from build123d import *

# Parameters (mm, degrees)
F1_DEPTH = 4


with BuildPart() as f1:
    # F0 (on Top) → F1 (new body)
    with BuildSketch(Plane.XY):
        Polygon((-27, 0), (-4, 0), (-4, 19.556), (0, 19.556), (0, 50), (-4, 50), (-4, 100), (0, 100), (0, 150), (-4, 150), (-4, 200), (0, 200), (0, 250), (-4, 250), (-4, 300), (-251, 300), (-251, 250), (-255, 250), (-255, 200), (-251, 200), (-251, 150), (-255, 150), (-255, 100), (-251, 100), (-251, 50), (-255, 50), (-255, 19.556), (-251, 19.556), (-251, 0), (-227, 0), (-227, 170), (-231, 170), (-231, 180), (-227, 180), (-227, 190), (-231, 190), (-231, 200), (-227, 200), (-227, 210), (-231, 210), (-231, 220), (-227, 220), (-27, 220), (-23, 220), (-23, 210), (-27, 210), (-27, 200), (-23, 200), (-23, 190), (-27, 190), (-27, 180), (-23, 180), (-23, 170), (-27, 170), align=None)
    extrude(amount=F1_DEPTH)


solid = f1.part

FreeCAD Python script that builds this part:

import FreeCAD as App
import Part
import Sketcher

doc = App.newDocument("Part")
body = doc.addObject("PartDesign::Body", "Body")

# Sketch on XY plane
sketch1 = body.newObject("Sketcher::SketchObject", "Sketch")
sketch1.AttachmentSupport = (doc.getObject("XY_Plane"), [""])
sketch1.MapMode = "FlatFace"
sketch1.addGeometry([
    Part.LineSegment(App.Vector(-27, 0, 0), App.Vector(-4, 0, 0)),  # 0
    Part.LineSegment(App.Vector(-4, 0, 0), App.Vector(-4, 19.6, 0)),  # 1
    Part.LineSegment(App.Vector(-4, 19.6, 0), App.Vector(0, 19.6, 0)),  # 2
    Part.LineSegment(App.Vector(0, 19.6, 0), App.Vector(0, 50, 0)),  # 3
    Part.LineSegment(App.Vector(0, 50, 0), App.Vector(-4, 50, 0)),  # 4
    Part.LineSegment(App.Vector(-4, 50, 0), App.Vector(-4, 100, 0)),  # 5
    Part.LineSegment(App.Vector(-4, 100, 0), App.Vector(0, 100, 0)),  # 6
    Part.LineSegment(App.Vector(0, 100, 0), App.Vector(0, 150, 0)),  # 7
    Part.LineSegment(App.Vector(0, 150, 0), App.Vector(-4, 150, 0)),  # 8
    Part.LineSegment(App.Vector(-4, 150, 0), App.Vector(-4, 200, 0)),  # 9
    Part.LineSegment(App.Vector(-4, 200, 0), App.Vector(0, 200, 0)),  # 10
    Part.LineSegment(App.Vector(0, 200, 0), App.Vector(0, 250, 0)),  # 11
    Part.LineSegment(App.Vector(0, 250, 0), App.Vector(-4, 250, 0)),  # 12
    Part.LineSegment(App.Vector(-4, 250, 0), App.Vector(-4, 300, 0)),  # 13
    Part.LineSegment(App.Vector(-4, 300, 0), App.Vector(-251, 300, 0)),  # 14
    Part.LineSegment(App.Vector(-251, 300, 0), App.Vector(-251, 250, 0)),  # 15
    Part.LineSegment(App.Vector(-251, 250, 0), App.Vector(-255, 250, 0)),  # 16
    Part.LineSegment(App.Vector(-255, 250, 0), App.Vector(-255, 200, 0)),  # 17
    Part.LineSegment(App.Vector(-255, 200, 0), App.Vector(-251, 200, 0)),  # 18
    Part.LineSegment(App.Vector(-251, 200, 0), App.Vector(-251, 150, 0)),  # 19
    Part.LineSegment(App.Vector(-251, 150, 0), App.Vector(-255, 150, 0)),  # 20
    Part.LineSegment(App.Vector(-255, 150, 0), App.Vector(-255, 100, 0)),  # 21
    Part.LineSegment(App.Vector(-255, 100, 0), App.Vector(-251, 100, 0)),  # 22
    Part.LineSegment(App.Vector(-251, 100, 0), App.Vector(-251, 50, 0)),  # 23
    Part.LineSegment(App.Vector(-251, 50, 0), App.Vector(-255, 50, 0)),  # 24
    Part.LineSegment(App.Vector(-255, 50, 0), App.Vector(-255, 19.6, 0)),  # 25
    Part.LineSegment(App.Vector(-255, 19.6, 0), App.Vector(-251, 19.6, 0)),  # 26
    Part.LineSegment(App.Vector(-251, 19.6, 0), App.Vector(-251, 0, 0)),  # 27
    Part.LineSegment(App.Vector(-251, 0, 0), App.Vector(-227, 0, 0)),  # 28
    Part.LineSegment(App.Vector(-227, 0, 0), App.Vector(-227, 170, 0)),  # 29
    Part.LineSegment(App.Vector(-227, 170, 0), App.Vector(-231, 170, 0)),  # 30
    Part.LineSegment(App.Vector(-231, 170, 0), App.Vector(-231, 180, 0)),  # 31
    Part.LineSegment(App.Vector(-231, 180, 0), App.Vector(-227, 180, 0)),  # 32
    Part.LineSegment(App.Vector(-227, 180, 0), App.Vector(-227, 190, 0)),  # 33
    Part.LineSegment(App.Vector(-227, 190, 0), App.Vector(-231, 190, 0)),  # 34
    Part.LineSegment(App.Vector(-231, 190, 0), App.Vector(-231, 200, 0)),  # 35
    Part.LineSegment(App.Vector(-231, 200, 0), App.Vector(-227, 200, 0)),  # 36
    Part.LineSegment(App.Vector(-227, 200, 0), App.Vector(-227, 210, 0)),  # 37
    Part.LineSegment(App.Vector(-227, 210, 0), App.Vector(-231, 210, 0)),  # 38
    Part.LineSegment(App.Vector(-231, 210, 0), App.Vector(-231, 220, 0)),  # 39
    Part.LineSegment(App.Vector(-231, 220, 0), App.Vector(-23, 220, 0)),  # 40
    Part.LineSegment(App.Vector(-23, 220, 0), App.Vector(-23, 210, 0)),  # 41
    Part.LineSegment(App.Vector(-23, 210, 0), App.Vector(-27, 210, 0)),  # 42
    Part.LineSegment(App.Vector(-27, 210, 0), App.Vector(-27, 200, 0)),  # 43
    Part.LineSegment(App.Vector(-27, 200, 0), App.Vector(-23, 200, 0)),  # 44
    Part.LineSegment(App.Vector(-23, 200, 0), App.Vector(-23, 190, 0)),  # 45
    Part.LineSegment(App.Vector(-23, 190, 0), App.Vector(-27, 190, 0)),  # 46
    Part.LineSegment(App.Vector(-27, 190, 0), App.Vector(-27, 180, 0)),  # 47
    Part.LineSegment(App.Vector(-27, 180, 0), App.Vector(-23, 180, 0)),  # 48
    Part.LineSegment(App.Vector(-23, 180, 0), App.Vector(-23, 170, 0)),  # 49
    Part.LineSegment(App.Vector(-23, 170, 0), App.Vector(-27, 170, 0)),  # 50
    Part.LineSegment(App.Vector(-27, 170, 0), App.Vector(-27, 0, 0)),  # 51
], False)
sketch1.addConstraint([
    Sketcher.Constraint("Coincident", 0, 2, 1, 1),
    Sketcher.Constraint("Coincident", 1, 2, 2, 1),
    Sketcher.Constraint("Coincident", 2, 2, 3, 1),
    Sketcher.Constraint("Coincident", 3, 2, 4, 1),
    Sketcher.Constraint("Coincident", 4, 2, 5, 1),
    Sketcher.Constraint("Coincident", 5, 2, 6, 1),
    Sketcher.Constraint("Coincident", 6, 2, 7, 1),
    Sketcher.Constraint("Coincident", 7, 2, 8, 1),
    Sketcher.Constraint("Coincident", 8, 2, 9, 1),
    Sketcher.Constraint("Coincident", 9, 2, 10, 1),
    Sketcher.Constraint("Coincident", 10, 2, 11, 1),
    Sketcher.Constraint("Coincident", 11, 2, 12, 1),
    Sketcher.Constraint("Coincident", 12, 2, 13, 1),
    Sketcher.Constraint("Coincident", 13, 2, 14, 1),
    Sketcher.Constraint("Coincident", 14, 2, 15, 1),
    Sketcher.Constraint("Coincident", 15, 2, 16, 1),
    Sketcher.Constraint("Coincident", 16, 2, 17, 1),
    Sketcher.Constraint("Coincident", 17, 2, 18, 1),
    Sketcher.Constraint("Coincident", 18, 2, 19, 1),
    Sketcher.Constraint("Coincident", 19, 2, 20, 1),
    Sketcher.Constraint("Coincident", 20, 2, 21, 1),
    Sketcher.Constraint("Coincident", 21, 2, 22, 1),
    Sketcher.Constraint("Coincident", 22, 2, 23, 1),
    Sketcher.Constraint("Coincident", 23, 2, 24, 1),
    Sketcher.Constraint("Coincident", 24, 2, 25, 1),
    Sketcher.Constraint("Coincident", 25, 2, 26, 1),
    Sketcher.Constraint("Coincident", 26, 2, 27, 1),
    Sketcher.Constraint("Coincident", 27, 2, 28, 1),
    Sketcher.Constraint("Coincident", 28, 2, 29, 1),
    Sketcher.Constraint("Coincident", 29, 2, 30, 1),
    Sketcher.Constraint("Coincident", 30, 2, 31, 1),
    Sketcher.Constraint("Coincident", 31, 2, 32, 1),
    Sketcher.Constraint("Coincident", 32, 2, 33, 1),
    Sketcher.Constraint("Coincident", 33, 2, 34, 1),
    Sketcher.Constraint("Coincident", 34, 2, 35, 1),
    Sketcher.Constraint("Coincident", 35, 2, 36, 1),
    Sketcher.Constraint("Coincident", 36, 2, 37, 1),
    Sketcher.Constraint("Coincident", 37, 2, 38, 1),
    Sketcher.Constraint("Coincident", 38, 2, 39, 1),
    Sketcher.Constraint("Coincident", 39, 2, 40, 1),
    Sketcher.Constraint("Coincident", 40, 2, 41, 1),
    Sketcher.Constraint("Coincident", 41, 2, 42, 1),
    Sketcher.Constraint("Coincident", 42, 2, 43, 1),
    Sketcher.Constraint("Coincident", 43, 2, 44, 1),
    Sketcher.Constraint("Coincident", 44, 2, 45, 1),
    Sketcher.Constraint("Coincident", 45, 2, 46, 1),
    Sketcher.Constraint("Coincident", 46, 2, 47, 1),
    Sketcher.Constraint("Coincident", 47, 2, 48, 1),
    Sketcher.Constraint("Coincident", 48, 2, 49, 1),
    Sketcher.Constraint("Coincident", 49, 2, 50, 1),
    Sketcher.Constraint("Coincident", 50, 2, 51, 1),
    Sketcher.Constraint("Coincident", 51, 2, 0, 1),
    Sketcher.Constraint("Horizontal", 0),
    Sketcher.Constraint("Vertical", 1),
    Sketcher.Constraint("Horizontal", 2),
    Sketcher.Constraint("Vertical", 3),
    Sketcher.Constraint("Horizontal", 4),
    Sketcher.Constraint("Vertical", 5),
    Sketcher.Constraint("Horizontal", 6),
    Sketcher.Constraint("Vertical", 7),
    Sketcher.Constraint("Horizontal", 8),
    Sketcher.Constraint("Vertical", 9),
    Sketcher.Constraint("Horizontal", 10),
    Sketcher.Constraint("Vertical", 11),
    Sketcher.Constraint("Horizontal", 12),
    Sketcher.Constraint("Vertical", 13),
    Sketcher.Constraint("Horizontal", 14),
    Sketcher.Constraint("Vertical", 15),
    Sketcher.Constraint("Horizontal", 16),
    Sketcher.Constraint("Vertical", 17),
    Sketcher.Constraint("Horizontal", 18),
    Sketcher.Constraint("Vertical", 19),
    Sketcher.Constraint("Horizontal", 20),
    Sketcher.Constraint("Vertical", 21),
    Sketcher.Constraint("Horizontal", 22),
    Sketcher.Constraint("Vertical", 23),
    Sketcher.Constraint("Horizontal", 24),
    Sketcher.Constraint("Vertical", 25),
    Sketcher.Constraint("Horizontal", 26),
    Sketcher.Constraint("Vertical", 27),
    Sketcher.Constraint("Horizontal", 28),
    Sketcher.Constraint("Vertical", 29),
    Sketcher.Constraint("Horizontal", 30),
    Sketcher.Constraint("Vertical", 31),
    Sketcher.Constraint("Horizontal", 32),
    Sketcher.Constraint("Vertical", 33),
    Sketcher.Constraint("Horizontal", 34),
    Sketcher.Constraint("Vertical", 35),
    Sketcher.Constraint("Horizontal", 36),
    Sketcher.Constraint("Vertical", 37),
    Sketcher.Constraint("Horizontal", 38),
    Sketcher.Constraint("Vertical", 39),
    Sketcher.Constraint("Horizontal", 40),
    Sketcher.Constraint("Vertical", 41),
    Sketcher.Constraint("Horizontal", 42),
    Sketcher.Constraint("Vertical", 43),
    Sketcher.Constraint("Horizontal", 44),
    Sketcher.Constraint("Vertical", 45),
    Sketcher.Constraint("Horizontal", 46),
    Sketcher.Constraint("Vertical", 47),
    Sketcher.Constraint("Horizontal", 48),
    Sketcher.Constraint("Vertical", 49),
    Sketcher.Constraint("Horizontal", 50),
    Sketcher.Constraint("Vertical", 51),
    Sketcher.Constraint("PointOnObject", 0, 2, -1),
    Sketcher.Constraint("PointOnObject", 2, 2, -2),
    Sketcher.Constraint("PointOnObject", 6, 2, -2),
    Sketcher.Constraint("PointOnObject", 10, 2, -2),
    Sketcher.Constraint("PointOnObject", 27, 2, -1),
    Sketcher.Constraint("Horizontal", 12, 2, 15, 2),
    Sketcher.Constraint("Horizontal", 10, 2, 17, 2),
    Sketcher.Constraint("Horizontal", 8, 2, 19, 2),
    Sketcher.Constraint("Horizontal", 6, 2, 21, 2),
    Sketcher.Constraint("Horizontal", 4, 2, 23, 2),
    Sketcher.Constraint("Horizontal", 2, 2, 25, 2),
    Sketcher.Constraint("Horizontal", 18, 2, 35, 2),
    Sketcher.Constraint("Horizontal", 38, 2, 41, 2),
    Sketcher.Constraint("Horizontal", 36, 2, 43, 2),
    Sketcher.Constraint("Horizontal", 34, 2, 45, 2),
    Sketcher.Constraint("Horizontal", 32, 2, 47, 2),
    Sketcher.Constraint("Horizontal", 30, 2, 49, 2),
    Sketcher.Constraint("Vertical", 1, 2, 4, 2),
    Sketcher.Constraint("Vertical", 5, 2, 8, 2),
    Sketcher.Constraint("Vertical", 9, 2, 12, 2),
    Sketcher.Constraint("Vertical", 15, 2, 18, 2),
    Sketcher.Constraint("Vertical", 17, 2, 20, 2),
    Sketcher.Constraint("Vertical", 19, 2, 22, 2),
    Sketcher.Constraint("Vertical", 21, 2, 24, 2),
    Sketcher.Constraint("Vertical", 23, 2, 26, 2),
    Sketcher.Constraint("Vertical", 29, 2, 32, 2),
    Sketcher.Constraint("Vertical", 31, 2, 34, 2),
    Sketcher.Constraint("Vertical", 33, 2, 36, 2),
    Sketcher.Constraint("Vertical", 35, 2, 38, 2),
    Sketcher.Constraint("Vertical", 41, 2, 44, 2),
    Sketcher.Constraint("Vertical", 43, 2, 46, 2),
    Sketcher.Constraint("Vertical", 45, 2, 48, 2),
    Sketcher.Constraint("Vertical", 47, 2, 50, 2),
    Sketcher.Constraint("Equal", 12, 16),
    Sketcher.Constraint("Equal", 26, 30),
    Sketcher.Constraint("Equal", 38, 42),
    Sketcher.Constraint("Equal", 5, 7),
    Sketcher.Constraint("Equal", 7, 9),
    Sketcher.Constraint("Equal", 9, 11),
    Sketcher.Constraint("Equal", 11, 13),
    Sketcher.Constraint("Equal", 31, 33),
    Sketcher.Constraint("Equal", 33, 35),
    Sketcher.Constraint("Equal", 35, 37),
    Sketcher.Constraint("Equal", 37, 39),
    Sketcher.Constraint("DistanceX", 0, 1, 0, 2, 23.0),
    Sketcher.Constraint("DistanceX", 2, 1, 2, 2, 4.0),
    Sketcher.Constraint("DistanceX", 14, 2, 14, 1, 247.0),
    Sketcher.Constraint("DistanceX", 28, 1, 28, 2, 24.0),
    Sketcher.Constraint("DistanceY", 5, 1, 5, 2, 50.0),
    Sketcher.Constraint("DistanceY", 29, 1, 29, 2, 170.0),
    Sketcher.Constraint("DistanceY", 31, 1, 31, 2, 10.0),
    Sketcher.Constraint("DistanceY", 1, 1, 1, 2, 19.556),
])
pad1 = body.newObject("PartDesign::Pad", "Pad")
pad1.Profile = sketch1
pad1.Length = 4

doc.recompute()
